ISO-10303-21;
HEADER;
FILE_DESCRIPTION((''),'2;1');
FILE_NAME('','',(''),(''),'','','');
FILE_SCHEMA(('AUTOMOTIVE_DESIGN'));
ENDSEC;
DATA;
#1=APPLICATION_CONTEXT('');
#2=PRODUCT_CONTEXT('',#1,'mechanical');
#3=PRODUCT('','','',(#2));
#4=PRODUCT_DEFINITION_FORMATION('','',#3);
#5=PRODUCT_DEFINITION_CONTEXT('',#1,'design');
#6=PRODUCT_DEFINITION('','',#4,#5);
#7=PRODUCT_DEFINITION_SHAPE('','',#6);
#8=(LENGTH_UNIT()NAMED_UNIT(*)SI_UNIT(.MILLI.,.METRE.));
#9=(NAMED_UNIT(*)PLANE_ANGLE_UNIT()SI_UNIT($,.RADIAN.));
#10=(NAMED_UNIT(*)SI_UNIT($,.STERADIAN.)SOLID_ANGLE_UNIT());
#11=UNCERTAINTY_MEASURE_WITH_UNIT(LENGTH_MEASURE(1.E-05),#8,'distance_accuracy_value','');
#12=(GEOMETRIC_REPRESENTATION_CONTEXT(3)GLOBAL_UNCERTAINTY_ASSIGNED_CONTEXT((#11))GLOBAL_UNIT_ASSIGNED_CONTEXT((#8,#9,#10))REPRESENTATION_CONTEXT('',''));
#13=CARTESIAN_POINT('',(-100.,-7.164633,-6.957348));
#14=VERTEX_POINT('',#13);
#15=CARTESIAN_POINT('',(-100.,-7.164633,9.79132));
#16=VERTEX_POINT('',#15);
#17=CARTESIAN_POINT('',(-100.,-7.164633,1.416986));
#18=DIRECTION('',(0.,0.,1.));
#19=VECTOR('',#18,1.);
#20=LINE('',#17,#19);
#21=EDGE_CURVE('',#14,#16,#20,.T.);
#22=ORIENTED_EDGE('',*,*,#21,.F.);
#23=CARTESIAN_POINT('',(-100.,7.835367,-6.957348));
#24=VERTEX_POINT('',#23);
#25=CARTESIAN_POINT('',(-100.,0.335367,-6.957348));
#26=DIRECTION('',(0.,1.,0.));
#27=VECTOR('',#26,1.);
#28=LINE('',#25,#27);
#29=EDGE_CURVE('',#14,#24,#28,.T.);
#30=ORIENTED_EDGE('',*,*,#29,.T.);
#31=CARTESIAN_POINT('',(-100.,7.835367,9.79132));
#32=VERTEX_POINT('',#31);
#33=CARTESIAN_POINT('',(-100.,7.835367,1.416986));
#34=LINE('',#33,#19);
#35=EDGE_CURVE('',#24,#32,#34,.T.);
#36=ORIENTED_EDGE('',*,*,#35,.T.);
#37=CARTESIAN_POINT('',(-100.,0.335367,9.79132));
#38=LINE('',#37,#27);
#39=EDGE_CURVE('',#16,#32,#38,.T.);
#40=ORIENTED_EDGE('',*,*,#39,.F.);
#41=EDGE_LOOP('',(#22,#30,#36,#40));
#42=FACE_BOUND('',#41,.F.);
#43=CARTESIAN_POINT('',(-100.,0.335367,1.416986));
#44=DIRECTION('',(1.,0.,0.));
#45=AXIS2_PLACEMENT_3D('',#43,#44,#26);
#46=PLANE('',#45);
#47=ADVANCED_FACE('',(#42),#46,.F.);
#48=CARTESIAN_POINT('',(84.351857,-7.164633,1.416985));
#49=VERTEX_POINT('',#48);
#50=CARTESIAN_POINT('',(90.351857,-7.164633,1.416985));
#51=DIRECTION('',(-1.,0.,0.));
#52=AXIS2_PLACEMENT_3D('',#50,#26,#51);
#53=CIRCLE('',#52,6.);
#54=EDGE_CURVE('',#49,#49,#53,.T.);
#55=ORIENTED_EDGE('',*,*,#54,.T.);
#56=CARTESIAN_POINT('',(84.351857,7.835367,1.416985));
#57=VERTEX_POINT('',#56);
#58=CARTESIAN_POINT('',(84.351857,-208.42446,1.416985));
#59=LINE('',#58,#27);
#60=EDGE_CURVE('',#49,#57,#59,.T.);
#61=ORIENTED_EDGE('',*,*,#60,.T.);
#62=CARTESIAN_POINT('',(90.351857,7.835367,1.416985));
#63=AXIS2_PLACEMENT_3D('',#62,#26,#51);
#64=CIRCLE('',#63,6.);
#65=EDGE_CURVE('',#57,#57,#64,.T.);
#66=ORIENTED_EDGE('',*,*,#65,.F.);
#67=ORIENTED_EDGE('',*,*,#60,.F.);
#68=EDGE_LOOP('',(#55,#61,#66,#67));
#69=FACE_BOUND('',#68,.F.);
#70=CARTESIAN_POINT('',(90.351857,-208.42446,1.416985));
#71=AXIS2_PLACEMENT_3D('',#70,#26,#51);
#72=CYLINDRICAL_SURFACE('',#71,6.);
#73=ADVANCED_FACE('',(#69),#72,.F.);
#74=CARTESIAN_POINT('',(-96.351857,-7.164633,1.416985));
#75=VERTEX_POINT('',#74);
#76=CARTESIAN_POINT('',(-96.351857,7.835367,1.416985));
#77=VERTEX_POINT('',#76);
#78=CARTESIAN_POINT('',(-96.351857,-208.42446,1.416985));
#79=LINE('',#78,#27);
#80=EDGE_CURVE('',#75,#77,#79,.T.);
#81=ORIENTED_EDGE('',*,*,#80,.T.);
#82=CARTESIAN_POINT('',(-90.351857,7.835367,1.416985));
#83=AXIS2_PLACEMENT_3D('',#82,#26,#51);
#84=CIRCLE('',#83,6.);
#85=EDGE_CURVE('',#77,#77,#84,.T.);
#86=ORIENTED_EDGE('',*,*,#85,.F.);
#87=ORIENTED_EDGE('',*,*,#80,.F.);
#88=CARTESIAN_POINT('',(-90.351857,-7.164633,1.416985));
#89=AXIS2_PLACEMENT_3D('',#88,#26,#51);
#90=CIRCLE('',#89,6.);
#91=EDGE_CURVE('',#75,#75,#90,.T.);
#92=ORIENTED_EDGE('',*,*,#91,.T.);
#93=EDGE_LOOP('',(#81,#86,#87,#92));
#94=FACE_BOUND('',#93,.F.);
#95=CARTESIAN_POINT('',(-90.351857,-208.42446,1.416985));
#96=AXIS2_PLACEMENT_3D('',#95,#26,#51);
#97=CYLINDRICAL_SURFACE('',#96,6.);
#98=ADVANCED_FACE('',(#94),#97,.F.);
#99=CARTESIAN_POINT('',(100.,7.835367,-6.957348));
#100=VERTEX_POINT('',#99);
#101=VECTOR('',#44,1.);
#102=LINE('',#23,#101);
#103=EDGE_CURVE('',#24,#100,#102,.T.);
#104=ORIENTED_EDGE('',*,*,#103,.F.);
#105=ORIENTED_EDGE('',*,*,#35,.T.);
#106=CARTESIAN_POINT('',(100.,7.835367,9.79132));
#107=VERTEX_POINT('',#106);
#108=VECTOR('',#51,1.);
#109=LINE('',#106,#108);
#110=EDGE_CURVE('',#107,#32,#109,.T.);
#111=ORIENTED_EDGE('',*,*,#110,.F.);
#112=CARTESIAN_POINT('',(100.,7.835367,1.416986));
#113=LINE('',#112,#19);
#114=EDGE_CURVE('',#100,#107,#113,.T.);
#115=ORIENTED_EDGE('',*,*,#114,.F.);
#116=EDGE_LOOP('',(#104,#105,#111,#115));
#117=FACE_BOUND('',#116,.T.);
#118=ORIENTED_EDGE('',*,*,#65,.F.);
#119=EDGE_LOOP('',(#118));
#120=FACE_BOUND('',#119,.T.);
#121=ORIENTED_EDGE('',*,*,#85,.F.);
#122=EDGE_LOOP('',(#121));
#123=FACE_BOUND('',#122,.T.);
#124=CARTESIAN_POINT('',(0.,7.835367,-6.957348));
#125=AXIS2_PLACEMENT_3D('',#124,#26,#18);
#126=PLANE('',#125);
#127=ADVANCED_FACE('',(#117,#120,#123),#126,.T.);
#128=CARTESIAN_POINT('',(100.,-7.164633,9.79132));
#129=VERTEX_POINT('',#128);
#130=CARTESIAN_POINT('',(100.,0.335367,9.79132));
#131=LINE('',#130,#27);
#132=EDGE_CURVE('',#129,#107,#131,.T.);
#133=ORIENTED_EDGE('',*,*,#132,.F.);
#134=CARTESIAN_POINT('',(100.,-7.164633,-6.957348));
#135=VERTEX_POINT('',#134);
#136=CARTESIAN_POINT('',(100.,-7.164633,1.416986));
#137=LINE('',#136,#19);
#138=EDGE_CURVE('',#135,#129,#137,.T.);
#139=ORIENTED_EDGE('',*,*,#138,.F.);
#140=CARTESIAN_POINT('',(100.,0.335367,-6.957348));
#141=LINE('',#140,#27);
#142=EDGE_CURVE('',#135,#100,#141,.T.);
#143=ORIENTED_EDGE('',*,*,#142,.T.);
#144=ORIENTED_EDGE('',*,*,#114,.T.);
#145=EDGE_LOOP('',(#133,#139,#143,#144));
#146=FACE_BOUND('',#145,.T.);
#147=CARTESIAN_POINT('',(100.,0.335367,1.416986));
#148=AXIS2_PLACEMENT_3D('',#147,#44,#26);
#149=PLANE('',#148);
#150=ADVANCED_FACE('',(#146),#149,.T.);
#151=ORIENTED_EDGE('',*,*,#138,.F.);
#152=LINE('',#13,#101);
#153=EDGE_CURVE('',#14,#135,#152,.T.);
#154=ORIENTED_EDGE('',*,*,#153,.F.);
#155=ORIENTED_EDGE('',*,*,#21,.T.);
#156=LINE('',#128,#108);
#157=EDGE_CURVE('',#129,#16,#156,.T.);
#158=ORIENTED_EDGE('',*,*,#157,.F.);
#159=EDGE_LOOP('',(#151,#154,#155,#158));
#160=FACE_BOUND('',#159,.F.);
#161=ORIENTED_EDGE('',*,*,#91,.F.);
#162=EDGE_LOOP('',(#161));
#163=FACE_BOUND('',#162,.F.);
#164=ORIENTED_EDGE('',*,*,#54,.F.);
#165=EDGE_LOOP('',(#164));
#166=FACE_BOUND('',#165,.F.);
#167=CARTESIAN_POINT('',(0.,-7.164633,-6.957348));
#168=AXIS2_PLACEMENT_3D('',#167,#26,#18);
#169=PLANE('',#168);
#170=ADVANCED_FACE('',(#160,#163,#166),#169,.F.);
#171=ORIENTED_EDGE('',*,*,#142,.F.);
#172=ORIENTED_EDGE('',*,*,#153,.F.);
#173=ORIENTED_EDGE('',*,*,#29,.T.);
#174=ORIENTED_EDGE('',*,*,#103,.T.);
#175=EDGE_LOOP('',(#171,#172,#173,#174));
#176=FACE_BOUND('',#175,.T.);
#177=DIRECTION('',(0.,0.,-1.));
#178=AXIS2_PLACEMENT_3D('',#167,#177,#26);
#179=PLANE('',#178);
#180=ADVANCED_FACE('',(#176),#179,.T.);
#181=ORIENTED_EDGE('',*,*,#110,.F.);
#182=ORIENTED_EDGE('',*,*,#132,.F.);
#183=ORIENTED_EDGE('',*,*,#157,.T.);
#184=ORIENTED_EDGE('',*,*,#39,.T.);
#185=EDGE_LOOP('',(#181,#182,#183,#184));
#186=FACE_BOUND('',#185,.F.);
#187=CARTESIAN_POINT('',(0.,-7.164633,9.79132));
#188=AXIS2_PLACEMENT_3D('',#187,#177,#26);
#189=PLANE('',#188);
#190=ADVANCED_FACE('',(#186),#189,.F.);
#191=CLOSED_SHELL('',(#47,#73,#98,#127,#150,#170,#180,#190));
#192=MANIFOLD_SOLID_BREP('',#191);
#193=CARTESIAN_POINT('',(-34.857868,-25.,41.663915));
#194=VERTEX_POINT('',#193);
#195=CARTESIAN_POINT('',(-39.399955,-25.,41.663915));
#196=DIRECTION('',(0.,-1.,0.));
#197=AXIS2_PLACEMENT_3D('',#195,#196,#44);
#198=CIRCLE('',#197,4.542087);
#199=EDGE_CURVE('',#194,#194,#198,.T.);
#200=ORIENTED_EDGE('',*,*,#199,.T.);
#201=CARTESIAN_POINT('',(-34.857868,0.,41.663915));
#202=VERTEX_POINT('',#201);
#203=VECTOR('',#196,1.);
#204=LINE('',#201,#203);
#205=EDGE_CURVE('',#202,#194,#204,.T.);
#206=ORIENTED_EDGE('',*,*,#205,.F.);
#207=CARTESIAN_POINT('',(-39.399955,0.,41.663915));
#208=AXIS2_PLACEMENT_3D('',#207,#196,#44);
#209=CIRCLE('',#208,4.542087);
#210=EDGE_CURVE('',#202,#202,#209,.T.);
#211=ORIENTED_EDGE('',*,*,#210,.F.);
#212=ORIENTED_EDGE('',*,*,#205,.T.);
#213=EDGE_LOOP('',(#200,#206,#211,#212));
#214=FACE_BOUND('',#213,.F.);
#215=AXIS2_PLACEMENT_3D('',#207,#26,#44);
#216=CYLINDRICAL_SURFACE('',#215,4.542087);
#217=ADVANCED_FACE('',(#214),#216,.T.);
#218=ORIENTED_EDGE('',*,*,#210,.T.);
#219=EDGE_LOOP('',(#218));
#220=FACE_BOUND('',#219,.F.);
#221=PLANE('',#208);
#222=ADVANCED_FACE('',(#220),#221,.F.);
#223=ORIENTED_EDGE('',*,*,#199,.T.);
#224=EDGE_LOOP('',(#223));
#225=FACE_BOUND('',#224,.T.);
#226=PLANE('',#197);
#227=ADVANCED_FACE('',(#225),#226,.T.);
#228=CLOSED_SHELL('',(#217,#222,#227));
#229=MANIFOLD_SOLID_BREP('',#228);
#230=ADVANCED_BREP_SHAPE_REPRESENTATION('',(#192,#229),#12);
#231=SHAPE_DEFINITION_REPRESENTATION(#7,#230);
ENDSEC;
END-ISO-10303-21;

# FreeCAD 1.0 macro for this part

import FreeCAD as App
import Part
import Sketcher
from FreeCAD import Vector


def add_polygon(sketch, points):
    """Adds a closed chain of lines whose ends are joined by coincident constraints."""
    first, n = sketch.GeometryCount, len(points)
    for a, b in zip(points, points[1:] + points[:1]):
        sketch.addGeometry(Part.LineSegment(App.Vector(*a, 0), App.Vector(*b, 0)), False)
    for i in range(n):
        sketch.addConstraint(Sketcher.Constraint("Coincident", first + i, 2, first + (i + 1) % n, 1))

doc = App.newDocument("Part")
body = doc.addObject("PartDesign::Body", "Body")

# Sketch on YZ plane
sketch1 = body.newObject("Sketcher::SketchObject", "Sketch")
sketch1.AttachmentSupport = (doc.getObject("YZ_Plane"), [""])
sketch1.MapMode = "FlatFace"
add_polygon(sketch1, [(-7.164633, 9.79132), (-7.164633, -6.957348), (7.835367, -6.957348), (7.835367, 9.79132)])  # lines 0-3
sketch1.addConstraint(Sketcher.Constraint("Vertical", 0))
sketch1.addConstraint(Sketcher.Constraint("Horizontal", 1))
sketch1.addConstraint(Sketcher.Constraint("Vertical", 2))
sketch1.addConstraint(Sketcher.Constraint("Horizontal", 3))
sketch1.addConstraint(Sketcher.Constraint("DistanceX", 1, 1, 1, 2, 15.0))
sketch1.addConstraint(Sketcher.Constraint("DistanceY", 0, 2, 0, 1, 16.748667))
sketch1.addConstraint(Sketcher.Constraint("DistanceY", -1, 1, 2, 2, 9.79132))
sketch1.addConstraint(Sketcher.Constraint("DistanceX", 0, 2, -1, 1, 7.164633))
pad1 = body.newObject("PartDesign::Pad", "Pad")
pad1.Profile = sketch1
pad1.Length = 200
pad1.Midplane = True

# Sketch on XZ plane
sketch2 = body.newObject("Sketcher::SketchObject", "Sketch001")
sketch2.AttachmentSupport = (doc.getObject("XZ_Plane"), [""])
sketch2.MapMode = "FlatFace"
sketch2.AttachmentOffset = App.Placement(Vector(0, 0, 7.164633), App.Rotation())
sketch2.addGeometry(Part.Circle(Vector(90.351857, 1.416985, 0), Vector(0, 0, 1), 6), False)
sketch2.addGeometry(Part.Circle(Vector(-90.351857, 1.416985, 0), Vector(0, 0, 1), 6), False)
sketch2.addConstraint(Sketcher.Constraint("Equal", 0, 1))
sketch2.addConstraint(Sketcher.Constraint("Symmetric", 0, 3, 1, 3, -2))
sketch2.addConstraint(Sketcher.Constraint("Diameter", 0, 12.0))
sketch2.addConstraint(Sketcher.Constraint("DistanceX", -1, 1, 0, 3, 90.351857))
sketch2.addConstraint(Sketcher.Constraint("DistanceY", -1, 1, 0, 3, 1.416985))
doc.recompute()
hole = body.newObject("PartDesign::Hole", "Hole")
hole.Profile = sketch2
hole.ThreadType = "None"
hole.Diameter = 12
hole.DepthType = "ThroughAll"
body2 = doc.addObject("PartDesign::Body", "Body001")

# Sketch on XZ plane
sketch3 = body2.newObject("Sketcher::SketchObject", "Sketch002")
sketch3.AttachmentSupport = (doc.getObject("XZ_Plane001"), [""])
sketch3.MapMode = "FlatFace"
sketch3.addGeometry(Part.Circle(Vector(-39.399955, 41.663915, 0), Vector(0, 0, 1), 4.542087), False)
sketch3.addConstraint(Sketcher.Constraint("Diameter", 0, 9.084174))
sketch3.addConstraint(Sketcher.Constraint("DistanceX", 0, 3, -1, 1, 39.399955))
sketch3.addConstraint(Sketcher.Constraint("DistanceY", -1, 1, 0, 3, 41.663915))
pad2 = body2.newObject("PartDesign::Pad", "Pad001")
pad2.Profile = sketch3
pad2.Length = 25

doc.recompute()
